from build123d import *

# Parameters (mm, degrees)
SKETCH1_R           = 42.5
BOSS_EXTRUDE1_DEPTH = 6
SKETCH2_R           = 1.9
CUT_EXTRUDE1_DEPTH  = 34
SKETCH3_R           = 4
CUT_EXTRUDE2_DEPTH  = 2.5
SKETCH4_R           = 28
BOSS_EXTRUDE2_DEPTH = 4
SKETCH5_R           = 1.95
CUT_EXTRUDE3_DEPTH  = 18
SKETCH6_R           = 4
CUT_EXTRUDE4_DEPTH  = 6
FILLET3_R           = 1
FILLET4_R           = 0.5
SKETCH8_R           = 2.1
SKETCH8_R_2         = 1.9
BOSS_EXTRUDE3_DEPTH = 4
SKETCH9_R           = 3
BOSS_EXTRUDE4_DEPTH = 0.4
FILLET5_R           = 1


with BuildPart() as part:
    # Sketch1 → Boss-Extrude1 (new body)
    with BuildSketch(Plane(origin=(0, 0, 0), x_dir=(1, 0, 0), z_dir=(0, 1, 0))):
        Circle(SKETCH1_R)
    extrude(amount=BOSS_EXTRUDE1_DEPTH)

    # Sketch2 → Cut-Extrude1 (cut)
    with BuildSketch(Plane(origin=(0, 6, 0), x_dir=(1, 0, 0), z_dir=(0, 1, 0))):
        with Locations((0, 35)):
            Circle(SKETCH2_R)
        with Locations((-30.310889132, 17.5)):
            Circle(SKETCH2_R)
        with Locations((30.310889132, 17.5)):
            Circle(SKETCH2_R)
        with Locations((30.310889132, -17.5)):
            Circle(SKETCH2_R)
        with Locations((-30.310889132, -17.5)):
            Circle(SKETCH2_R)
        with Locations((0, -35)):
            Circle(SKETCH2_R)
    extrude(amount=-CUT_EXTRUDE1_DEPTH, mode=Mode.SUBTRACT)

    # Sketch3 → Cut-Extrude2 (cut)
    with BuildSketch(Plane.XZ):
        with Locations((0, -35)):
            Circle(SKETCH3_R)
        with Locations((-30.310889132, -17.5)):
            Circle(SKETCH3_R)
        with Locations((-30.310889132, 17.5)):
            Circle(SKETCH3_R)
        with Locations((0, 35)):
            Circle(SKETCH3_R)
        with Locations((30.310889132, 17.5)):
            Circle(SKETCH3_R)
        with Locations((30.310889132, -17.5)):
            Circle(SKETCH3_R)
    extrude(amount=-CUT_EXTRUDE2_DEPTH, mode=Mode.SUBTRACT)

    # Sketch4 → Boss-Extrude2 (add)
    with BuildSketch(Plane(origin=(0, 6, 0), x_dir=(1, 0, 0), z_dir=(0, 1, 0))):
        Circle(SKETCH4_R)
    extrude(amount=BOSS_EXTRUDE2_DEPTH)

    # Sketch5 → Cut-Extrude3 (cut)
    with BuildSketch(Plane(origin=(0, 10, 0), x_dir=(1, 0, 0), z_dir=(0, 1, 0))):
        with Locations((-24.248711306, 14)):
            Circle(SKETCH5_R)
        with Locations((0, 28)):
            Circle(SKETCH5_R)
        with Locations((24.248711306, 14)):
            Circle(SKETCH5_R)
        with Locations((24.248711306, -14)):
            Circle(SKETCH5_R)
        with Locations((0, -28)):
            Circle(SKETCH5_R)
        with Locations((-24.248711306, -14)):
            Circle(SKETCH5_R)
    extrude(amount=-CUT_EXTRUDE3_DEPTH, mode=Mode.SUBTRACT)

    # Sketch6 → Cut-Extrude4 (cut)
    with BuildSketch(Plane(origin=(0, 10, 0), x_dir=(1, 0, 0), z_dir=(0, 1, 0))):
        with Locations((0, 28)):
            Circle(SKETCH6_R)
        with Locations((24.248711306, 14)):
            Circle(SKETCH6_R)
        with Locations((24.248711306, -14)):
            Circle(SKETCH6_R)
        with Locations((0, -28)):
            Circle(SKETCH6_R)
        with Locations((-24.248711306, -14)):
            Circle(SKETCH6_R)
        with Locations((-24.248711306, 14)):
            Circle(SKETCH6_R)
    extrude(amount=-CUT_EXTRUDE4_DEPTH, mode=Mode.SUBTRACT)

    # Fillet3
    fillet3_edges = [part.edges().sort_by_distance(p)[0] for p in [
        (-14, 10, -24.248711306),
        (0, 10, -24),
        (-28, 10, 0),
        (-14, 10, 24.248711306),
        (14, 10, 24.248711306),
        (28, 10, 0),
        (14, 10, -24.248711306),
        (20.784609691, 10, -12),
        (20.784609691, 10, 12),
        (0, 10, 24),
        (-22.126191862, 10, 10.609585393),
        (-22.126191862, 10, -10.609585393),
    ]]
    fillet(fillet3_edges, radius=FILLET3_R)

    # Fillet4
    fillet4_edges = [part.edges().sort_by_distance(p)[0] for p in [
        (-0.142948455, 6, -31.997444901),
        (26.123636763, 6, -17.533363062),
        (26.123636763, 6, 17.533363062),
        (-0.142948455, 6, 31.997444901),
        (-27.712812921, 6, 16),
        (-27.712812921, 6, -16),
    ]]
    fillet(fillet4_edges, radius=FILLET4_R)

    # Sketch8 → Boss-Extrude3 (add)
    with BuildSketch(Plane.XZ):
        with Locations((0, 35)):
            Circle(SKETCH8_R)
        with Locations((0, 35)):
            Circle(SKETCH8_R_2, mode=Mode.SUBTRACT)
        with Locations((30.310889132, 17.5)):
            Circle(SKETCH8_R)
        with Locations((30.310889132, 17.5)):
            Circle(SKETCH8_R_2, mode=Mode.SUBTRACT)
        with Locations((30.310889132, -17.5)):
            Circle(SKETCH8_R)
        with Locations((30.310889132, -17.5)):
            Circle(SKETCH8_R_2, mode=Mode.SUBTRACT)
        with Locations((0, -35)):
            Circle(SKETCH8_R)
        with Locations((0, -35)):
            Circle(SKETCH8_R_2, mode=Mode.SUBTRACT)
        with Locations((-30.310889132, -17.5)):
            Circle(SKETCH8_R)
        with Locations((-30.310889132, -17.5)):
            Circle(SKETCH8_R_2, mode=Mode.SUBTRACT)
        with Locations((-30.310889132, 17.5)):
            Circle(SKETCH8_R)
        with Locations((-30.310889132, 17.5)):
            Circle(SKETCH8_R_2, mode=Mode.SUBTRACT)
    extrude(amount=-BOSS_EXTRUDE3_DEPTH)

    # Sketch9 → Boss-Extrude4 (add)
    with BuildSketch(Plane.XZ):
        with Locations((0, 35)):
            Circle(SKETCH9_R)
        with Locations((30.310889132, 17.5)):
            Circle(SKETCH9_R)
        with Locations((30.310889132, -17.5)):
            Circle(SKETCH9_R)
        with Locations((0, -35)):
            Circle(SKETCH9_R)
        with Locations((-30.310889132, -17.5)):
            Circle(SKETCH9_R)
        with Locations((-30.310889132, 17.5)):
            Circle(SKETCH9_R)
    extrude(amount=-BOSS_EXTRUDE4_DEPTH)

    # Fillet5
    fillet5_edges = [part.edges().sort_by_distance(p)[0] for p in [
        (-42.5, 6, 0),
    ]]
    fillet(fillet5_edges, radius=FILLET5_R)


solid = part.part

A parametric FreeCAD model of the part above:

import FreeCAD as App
import Part
import Sketcher

V = App.Vector
Q = App.Units.Quantity


def edges_at(feature, points):
    """Names of the edges that pass closest to the given points."""
    edges = feature.Shape.Edges
    near = lambda p: min(range(len(edges)), key=lambda i: edges[i].distToShape(Part.Vertex(*p))[0])
    return sorted({f"Edge{near(p) + 1}" for p in points})

doc = App.newDocument("Part")
params = doc.addObject("Spreadsheet::Sheet", "Params")
for row, (alias, value) in enumerate([
    ("sketch1_diameter", "85 mm"),
    ("pad1_length", "6 mm"),
    ("sketch2_diameter", "3.8 mm"),
    ("pocket1_length", "34 mm"),
    ("sketch3_diameter", "8 mm"),
    ("pocket2_length", "2.5 mm"),
    ("sketch4_diameter", "56 mm"),
    ("pad2_length", "4 mm"),
    ("sketch5_diameter", "3.9 mm"),
    ("pocket3_length", "18 mm"),
    ("sketch6_diameter", "8 mm"),
    ("pocket4_length", "6 mm"),
    ("fillet_radius", "1 mm"),
    ("fillet2_radius", "0.5 mm"),
    ("sketch7_diameter", "4.2 mm"),
    ("sketch7_diameter2", "3.8 mm"),
    ("pad3_length", "4 mm"),
    ("sketch8_diameter", "6 mm"),
    ("pad4_length", "0.4 mm"),
    ("fillet3_radius", "1 mm"),
], start=1):
    params.set(f"A{row}", alias)
    params.set(f"B{row}", "=" + value)
    params.setAlias(f"B{row}", alias)

body = doc.addObject("PartDesign::Body", "Body")

sketch1 = doc.addObject("Sketcher::SketchObject", "Sketch")
body.addObject(sketch1)
sketch1.AttachmentSupport = (doc.XZ_Plane, [""])
sketch1.MapMode = "FlatFace"
sketch1.addGeometry(Part.Circle(V(0, 0, 0), V(0, 0, 1), 42), False)
sketch1.addConstraint([
    Sketcher.Constraint("Coincident", 0, 3, -1, 1),
    Sketcher.Constraint("Diameter", 0, Q("85 mm")),
])
sketch1.setExpression("Constraints[1]", "Params.sketch1_diameter")
pad1 = doc.addObject("PartDesign::Pad", "Pad")
body.addObject(pad1)
pad1.Profile = sketch1
pad1.setExpression("Length", "Params.pad1_length")
pad1.Reversed = True

sketch2 = doc.addObject("Sketcher::SketchObject", "Sketch001")
body.addObject(sketch2)
sketch2.AttachmentSupport = (doc.XZ_Plane, [""])
sketch2.MapMode = "FlatFace"
sketch2.AttachmentOffset = App.Placement(V(0, 0, -6), App.Rotation())
sketch2.addGeometry([
    Part.Circle(V(0, -35, 0), V(0, 0, 1), 1.9),
    Part.Circle(V(-30.3, -17.5, 0), V(0, 0, 1), 1.9),
    Part.Circle(V(30.3, -17.5, 0), V(0, 0, 1), 1.9),
    Part.Circle(V(30.3, 17.5, 0), V(0, 0, 1), 1.9),
    Part.Circle(V(-30.3, 17.5, 0), V(0, 0, 1), 1.9),
    Part.Circle(V(0, 35, 0), V(0, 0, 1), 1.9),
], False)
sketch2.addConstraint([
    Sketcher.Constraint("Equal", 0, 1),
    Sketcher.Constraint("Equal", 1, 2),
    Sketcher.Constraint("Equal", 2, 3),
    Sketcher.Constraint("Equal", 3, 4),
    Sketcher.Constraint("Equal", 4, 5),
    Sketcher.Constraint("Symmetric", 1, 3, 3, 3, -1, 1),
    Sketcher.Constraint("Symmetric", 2, 3, 4, 3, -1, 1),
    Sketcher.Constraint("Symmetric", 0, 3, 5, 3, -1, 1),
    Sketcher.Constraint("Symmetric", 1, 3, 2, 3, -2),
    Sketcher.Constraint("PointOnObject", 0, 3, -2),
    Sketcher.Constraint("Diameter", 0, Q("3.8 mm")),
    Sketcher.Constraint("DistanceY", 0, 3, -1, 1, Q("35 mm")),
    Sketcher.Constraint("DistanceY", 2, 3, 3, 3, Q("35 mm")),
    Sketcher.Constraint("DistanceX", 1, 3, -1, 1, Q("30.310889 mm")),
])
sketch2.setExpression("Constraints[10]", "Params.sketch2_diameter")
pocket1 = doc.addObject("PartDesign::Pocket", "Pocket")
body.addObject(pocket1)
pocket1.Profile = sketch2
pocket1.setExpression("Length", "Params.pocket1_length")
pocket1.Reversed = True

sketch3 = doc.addObject("Sketcher::SketchObject", "Sketch002")
body.addObject(sketch3)
sketch3.AttachmentSupport = (doc.XZ_Plane, [""])
sketch3.MapMode = "FlatFace"
sketch3.addGeometry([
    Part.Circle(V(0, -35, 0), V(0, 0, 1), 4),
    Part.Circle(V(-30.3, -17.5, 0), V(0, 0, 1), 4),
    Part.Circle(V(-30.3, 17.5, 0), V(0, 0, 1), 4),
    Part.Circle(V(0, 35, 0), V(0, 0, 1), 4),
    Part.Circle(V(30.3, 17.5, 0), V(0, 0, 1), 4),
    Part.Circle(V(30.3, -17.5, 0), V(0, 0, 1), 4),
], False)
sketch3.addConstraint([
    Sketcher.Constraint("Equal", 0, 1),
    Sketcher.Constraint("Equal", 1, 2),
    Sketcher.Constraint("Equal", 2, 3),
    Sketcher.Constraint("Equal", 3, 4),
    Sketcher.Constraint("Equal", 4, 5),
    Sketcher.Constraint("Symmetric", 0, 3, 3, 3, -1, 1),
    Sketcher.Constraint("Symmetric", 1, 3, 4, 3, -1, 1),
    Sketcher.Constraint("Symmetric", 2, 3, 5, 3, -1, 1),
    Sketcher.Constraint("Symmetric", 2, 3, 4, 3, -2),
    Sketcher.Constraint("PointOnObject", 0, 3, -2),
    Sketcher.Constraint("Diameter", 0, Q("8 mm")),
    Sketcher.Constraint("DistanceY", 0, 3, -1, 1, Q("35 mm")),
    Sketcher.Constraint("DistanceY", 1, 3, 2, 3, Q("35 mm")),
    Sketcher.Constraint("DistanceX", 1, 3, -1, 1, Q("30.310889 mm")),
])
sketch3.setExpression("Constraints[10]", "Params.sketch3_diameter")
pocket2 = doc.addObject("PartDesign::Pocket", "Pocket001")
body.addObject(pocket2)
pocket2.Profile = sketch3
pocket2.setExpression("Length", "Params.pocket2_length")

sketch4 = doc.addObject("Sketcher::SketchObject", "Sketch003")
body.addObject(sketch4)
sketch4.AttachmentSupport = (doc.XZ_Plane, [""])
sketch4.MapMode = "FlatFace"
sketch4.AttachmentOffset = App.Placement(V(0, 0, -6), App.Rotation())
sketch4.addGeometry(Part.Circle(V(0, 0, 0), V(0, 0, 1), 28), False)
sketch4.addConstraint([
    Sketcher.Constraint("Coincident", 0, 3, -1, 1),
    Sketcher.Constraint("Diameter", 0, Q("56 mm")),
])
sketch4.setExpression("Constraints[1]", "Params.sketch4_diameter")
pad2 = doc.addObject("PartDesign::Pad", "Pad001")
body.addObject(pad2)
pad2.Profile = sketch4
pad2.setExpression("Length", "Params.pad2_length")
pad2.Reversed = True

sketch5 = doc.addObject("Sketcher::SketchObject", "Sketch004")
body.addObject(sketch5)
sketch5.AttachmentSupport = (doc.XZ_Plane, [""])
sketch5.MapMode = "FlatFace"
sketch5.AttachmentOffset = App.Placement(V(0, 0, -10), App.Rotation())
sketch5.addGeometry([
    Part.Circle(V(-24.2, -14, 0), V(0, 0, 1), 1.9),
    Part.Circle(V(0, -28, 0), V(0, 0, 1), 1.9),
    Part.Circle(V(24.2, -14, 0), V(0, 0, 1), 1.9),
    Part.Circle(V(24.2, 14, 0), V(0, 0, 1), 1.9),
    Part.Circle(V(0, 28, 0), V(0, 0, 1), 1.9),
    Part.Circle(V(-24.2, 14, 0), V(0, 0, 1), 1.9),
], False)
sketch5.addConstraint([
    Sketcher.Constraint("Equal", 0, 1),
    Sketcher.Constraint("Equal", 1, 2),
    Sketcher.Constraint("Equal", 2, 3),
    Sketcher.Constraint("Equal", 3, 4),
    Sketcher.Constraint("Equal", 4, 5),
    Sketcher.Constraint("Symmetric", 0, 3, 3, 3, -1, 1),
    Sketcher.Constraint("Symmetric", 1, 3, 4, 3, -1, 1),
    Sketcher.Constraint("Symmetric", 2, 3, 5, 3, -1, 1),
    Sketcher.Constraint("Symmetric", 0, 3, 2, 3, -2),
    Sketcher.Constraint("PointOnObject", 1, 3, -2),
    Sketcher.Constraint("Diameter", 0, Q("3.9 mm")),
    Sketcher.Constraint("DistanceY", 0, 3, -1, 1, Q("14 mm")),
    Sketcher.Constraint("DistanceY", 1, 3, -1, 1, Q("28 mm")),
    Sketcher.Constraint("DistanceX", 0, 3, -1, 1, Q("24.248711 mm")),
])
sketch5.setExpression("Constraints[10]", "Params.sketch5_diameter")
pocket3 = doc.addObject("PartDesign::Pocket", "Pocket002")
body.addObject(pocket3)
pocket3.Profile = sketch5
pocket3.setExpression("Length", "Params.pocket3_length")
pocket3.Reversed = True

sketch6 = doc.addObject("Sketcher::SketchObject", "Sketch005")
body.addObject(sketch6)
sketch6.AttachmentSupport = (doc.XZ_Plane, [""])
sketch6.MapMode = "FlatFace"
sketch6.AttachmentOffset = App.Placement(V(0, 0, -10), App.Rotation())
sketch6.addGeometry([
    Part.Circle(V(0, -28, 0), V(0, 0, 1), 4),
    Part.Circle(V(24.2, -14, 0), V(0, 0, 1), 4),
    Part.Circle(V(24.2, 14, 0), V(0, 0, 1), 4),
    Part.Circle(V(0, 28, 0), V(0, 0, 1), 4),
    Part.Circle(V(-24.2, 14, 0), V(0, 0, 1), 4),
    Part.Circle(V(-24.2, -14, 0), V(0, 0, 1), 4),
], False)
sketch6.addConstraint([
    Sketcher.Constraint("Equal", 0, 1),
    Sketcher.Constraint("Equal", 1, 2),
    Sketcher.Constraint("Equal", 2, 3),
    Sketcher.Constraint("Equal", 3, 4),
    Sketcher.Constraint("Equal", 4, 5),
    Sketcher.Constraint("Symmetric", 0, 3, 3, 3, -1, 1),
    Sketcher.Constraint("Symmetric", 1, 3, 4, 3, -1, 1),
    Sketcher.Constraint("Symmetric", 2, 3, 5, 3, -1, 1),
    Sketcher.Constraint("Symmetric", 2, 3, 4, 3, -2),
    Sketcher.Constraint("PointOnObject", 0, 3, -2),
    Sketcher.Constraint("Diameter", 0, Q("8 mm")),
    Sketcher.Constraint("DistanceY", 0, 3, -1, 1, Q("28 mm")),
    Sketcher.Constraint("DistanceY", 1, 3, -1, 1, Q("14 mm")),
    Sketcher.Constraint("DistanceX", -1, 1, 1, 3, Q("24.248711 mm")),
])
sketch6.setExpression("Constraints[10]", "Params.sketch6_diameter")
pocket4 = doc.addObject("PartDesign::Pocket", "Pocket003")
body.addObject(pocket4)
pocket4.Profile = sketch6
pocket4.setExpression("Length", "Params.pocket4_length")
pocket4.Reversed = True
doc.recompute()

fillet = doc.addObject("PartDesign::Fillet", "Fillet")
body.addObject(fillet)
fillet.Base = (pocket4, edges_at(pocket4, [
    (-14, 10, -24.249),
    (0, 10, -24),
    (-28, 10, 0),
    (-14, 10, 24.249),
    (14, 10, 24.249),
    (28, 10, 0),
    (14, 10, -24.249),
    (20.785, 10, -12),
    (20.785, 10, 12),
    (0, 10, 24),
    (-22.126, 10, 10.61),
    (-22.126, 10, -10.61),
]))
fillet.setExpression("Radius", "Params.fillet_radius")
doc.recompute()

fillet2 = doc.addObject("PartDesign::Fillet", "Fillet001")
body.addObject(fillet2)
fillet2.Base = (fillet, edges_at(fillet, [
    (-0.143, 6, -31.997),
    (26.124, 6, -17.533),
    (26.124, 6, 17.533),
    (-0.143, 6, 31.997),
    (-27.713, 6, 16),
    (-27.713, 6, -16),
]))
fillet2.setExpression("Radius", "Params.fillet2_radius")

sketch7 = doc.addObject("Sketcher::SketchObject", "Sketch006")
body.addObject(sketch7)
sketch7.AttachmentSupport = (doc.XZ_Plane, [""])
sketch7.MapMode = "FlatFace"
sketch7.addGeometry([
    Part.Circle(V(0, 35, 0), V(0, 0, 1), 2.1),
    Part.Circle(V(0, 35, 0), V(0, 0, 1), 1.9),
    Part.Circle(V(30.3, 17.5, 0), V(0, 0, 1), 2.1),
    Part.Circle(V(30.3, 17.5, 0), V(0, 0, 1), 1.9),
    Part.Circle(V(30.3, -17.5, 0), V(0, 0, 1), 2.1),
    Part.Circle(V(30.3, -17.5, 0), V(0, 0, 1), 1.9),
    Part.Circle(V(0, -35, 0), V(0, 0, 1), 2.1),
    Part.Circle(V(0, -35, 0), V(0, 0, 1), 1.9),
    Part.Circle(V(-30.3, -17.5, 0), V(0, 0, 1), 2.1),
    Part.Circle(V(-30.3, -17.5, 0), V(0, 0, 1), 1.9),
    Part.Circle(V(-30.3, 17.5, 0), V(0, 0, 1), 2.1),
    Part.Circle(V(-30.3, 17.5, 0), V(0, 0, 1), 1.9),
], False)
sketch7.addConstraint([
    Sketcher.Constraint("Coincident", 1, 3, 0, 3),
    Sketcher.Constraint("Coincident", 3, 3, 2, 3),
    Sketcher.Constraint("Coincident", 5, 3, 4, 3),
    Sketcher.Constraint("Coincident", 7, 3, 6, 3),
    Sketcher.Constraint("Coincident", 9, 3, 8, 3),
    Sketcher.Constraint("Coincident", 11, 3, 10, 3),
    Sketcher.Constraint("Equal", 0, 2),
    Sketcher.Constraint("Equal", 1, 3),
    Sketcher.Constraint("Equal", 2, 4),
    Sketcher.Constraint("Equal", 3, 5),
    Sketcher.Constraint("Equal", 4, 6),
    Sketcher.Constraint("Equal", 5, 7),
    Sketcher.Constraint("Equal", 6, 8),
    Sketcher.Constraint("Equal", 7, 9),
    Sketcher.Constraint("Equal", 8, 10),
    Sketcher.Constraint("Equal", 9, 11),
    Sketcher.Constraint("Symmetric", 0, 3, 6, 3, -1, 1),
    Sketcher.Constraint("Symmetric", 2, 3, 8, 3, -1, 1),
    Sketcher.Constraint("Symmetric", 4, 3, 10, 3, -1, 1),
    Sketcher.Constraint("Symmetric", 4, 3, 8, 3, -2),
    Sketcher.Constraint("PointOnObject", 0, 3, -2),
    Sketcher.Constraint("Diameter", 0, Q("4.2 mm")),
    Sketcher.Constraint("Diameter", 1, Q("3.8 mm")),
    Sketcher.Constraint("DistanceY", -1, 1, 0, 3, Q("35 mm")),
    Sketcher.Constraint("DistanceY", 4, 3, 2, 3, Q("35 mm")),
    Sketcher.Constraint("DistanceX", -1, 1, 2, 3, Q("30.310889 mm")),
])
sketch7.setExpression("Constraints[21]", "Params.sketch7_diameter")
sketch7.setExpression("Constraints[22]", "Params.sketch7_diameter2")
pad3 = doc.addObject("PartDesign::Pad", "Pad002")
body.addObject(pad3)
pad3.Profile = sketch7
pad3.setExpression("Length", "Params.pad3_length")
pad3.Reversed = True

sketch8 = doc.addObject("Sketcher::SketchObject", "Sketch007")
body.addObject(sketch8)
sketch8.AttachmentSupport = (doc.XZ_Plane, [""])
sketch8.MapMode = "FlatFace"
sketch8.addGeometry([
    Part.Circle(V(0, 35, 0), V(0, 0, 1), 3),
    Part.Circle(V(30.3, 17.5, 0), V(0, 0, 1), 3),
    Part.Circle(V(30.3, -17.5, 0), V(0, 0, 1), 3),
    Part.Circle(V(0, -35, 0), V(0, 0, 1), 3),
    Part.Circle(V(-30.3, -17.5, 0), V(0, 0, 1), 3),
    Part.Circle(V(-30.3, 17.5, 0), V(0, 0, 1), 3),
], False)
sketch8.addConstraint([
    Sketcher.Constraint("Equal", 0, 1),
    Sketcher.Constraint("Equal", 1, 2),
    Sketcher.Constraint("Equal", 2, 3),
    Sketcher.Constraint("Equal", 3, 4),
    Sketcher.Constraint("Equal", 4, 5),
    Sketcher.Constraint("Symmetric", 0, 3, 3, 3, -1, 1),
    Sketcher.Constraint("Symmetric", 1, 3, 4, 3, -1, 1),
    Sketcher.Constraint("Symmetric", 2, 3, 5, 3, -1, 1),
    Sketcher.Constraint("Symmetric", 2, 3, 4, 3, -2),
    Sketcher.Constraint("PointOnObject", 0, 3, -2),
    Sketcher.Constraint("Diameter", 0, Q("6 mm")),
    Sketcher.Constraint("DistanceY", -1, 1, 0, 3, Q("35 mm")),
    Sketcher.Constraint("DistanceY", 2, 3, 1, 3, Q("35 mm")),
    Sketcher.Constraint("DistanceX", -1, 1, 1, 3, Q("30.310889 mm")),
])
sketch8.setExpression("Constraints[10]", "Params.sketch8_diameter")
pad4 = doc.addObject("PartDesign::Pad", "Pad003")
body.addObject(pad4)
pad4.Profile = sketch8
pad4.setExpression("Length", "Params.pad4_length")
pad4.Reversed = True
doc.recompute()

fillet3 = doc.addObject("PartDesign::Fillet", "Fillet002")
body.addObject(fillet3)
fillet3.Base = (pad4, edges_at(pad4, [(-42.5, 6, 0)]))
fillet3.setExpression("Radius", "Params.fillet3_radius")

doc.recompute()
